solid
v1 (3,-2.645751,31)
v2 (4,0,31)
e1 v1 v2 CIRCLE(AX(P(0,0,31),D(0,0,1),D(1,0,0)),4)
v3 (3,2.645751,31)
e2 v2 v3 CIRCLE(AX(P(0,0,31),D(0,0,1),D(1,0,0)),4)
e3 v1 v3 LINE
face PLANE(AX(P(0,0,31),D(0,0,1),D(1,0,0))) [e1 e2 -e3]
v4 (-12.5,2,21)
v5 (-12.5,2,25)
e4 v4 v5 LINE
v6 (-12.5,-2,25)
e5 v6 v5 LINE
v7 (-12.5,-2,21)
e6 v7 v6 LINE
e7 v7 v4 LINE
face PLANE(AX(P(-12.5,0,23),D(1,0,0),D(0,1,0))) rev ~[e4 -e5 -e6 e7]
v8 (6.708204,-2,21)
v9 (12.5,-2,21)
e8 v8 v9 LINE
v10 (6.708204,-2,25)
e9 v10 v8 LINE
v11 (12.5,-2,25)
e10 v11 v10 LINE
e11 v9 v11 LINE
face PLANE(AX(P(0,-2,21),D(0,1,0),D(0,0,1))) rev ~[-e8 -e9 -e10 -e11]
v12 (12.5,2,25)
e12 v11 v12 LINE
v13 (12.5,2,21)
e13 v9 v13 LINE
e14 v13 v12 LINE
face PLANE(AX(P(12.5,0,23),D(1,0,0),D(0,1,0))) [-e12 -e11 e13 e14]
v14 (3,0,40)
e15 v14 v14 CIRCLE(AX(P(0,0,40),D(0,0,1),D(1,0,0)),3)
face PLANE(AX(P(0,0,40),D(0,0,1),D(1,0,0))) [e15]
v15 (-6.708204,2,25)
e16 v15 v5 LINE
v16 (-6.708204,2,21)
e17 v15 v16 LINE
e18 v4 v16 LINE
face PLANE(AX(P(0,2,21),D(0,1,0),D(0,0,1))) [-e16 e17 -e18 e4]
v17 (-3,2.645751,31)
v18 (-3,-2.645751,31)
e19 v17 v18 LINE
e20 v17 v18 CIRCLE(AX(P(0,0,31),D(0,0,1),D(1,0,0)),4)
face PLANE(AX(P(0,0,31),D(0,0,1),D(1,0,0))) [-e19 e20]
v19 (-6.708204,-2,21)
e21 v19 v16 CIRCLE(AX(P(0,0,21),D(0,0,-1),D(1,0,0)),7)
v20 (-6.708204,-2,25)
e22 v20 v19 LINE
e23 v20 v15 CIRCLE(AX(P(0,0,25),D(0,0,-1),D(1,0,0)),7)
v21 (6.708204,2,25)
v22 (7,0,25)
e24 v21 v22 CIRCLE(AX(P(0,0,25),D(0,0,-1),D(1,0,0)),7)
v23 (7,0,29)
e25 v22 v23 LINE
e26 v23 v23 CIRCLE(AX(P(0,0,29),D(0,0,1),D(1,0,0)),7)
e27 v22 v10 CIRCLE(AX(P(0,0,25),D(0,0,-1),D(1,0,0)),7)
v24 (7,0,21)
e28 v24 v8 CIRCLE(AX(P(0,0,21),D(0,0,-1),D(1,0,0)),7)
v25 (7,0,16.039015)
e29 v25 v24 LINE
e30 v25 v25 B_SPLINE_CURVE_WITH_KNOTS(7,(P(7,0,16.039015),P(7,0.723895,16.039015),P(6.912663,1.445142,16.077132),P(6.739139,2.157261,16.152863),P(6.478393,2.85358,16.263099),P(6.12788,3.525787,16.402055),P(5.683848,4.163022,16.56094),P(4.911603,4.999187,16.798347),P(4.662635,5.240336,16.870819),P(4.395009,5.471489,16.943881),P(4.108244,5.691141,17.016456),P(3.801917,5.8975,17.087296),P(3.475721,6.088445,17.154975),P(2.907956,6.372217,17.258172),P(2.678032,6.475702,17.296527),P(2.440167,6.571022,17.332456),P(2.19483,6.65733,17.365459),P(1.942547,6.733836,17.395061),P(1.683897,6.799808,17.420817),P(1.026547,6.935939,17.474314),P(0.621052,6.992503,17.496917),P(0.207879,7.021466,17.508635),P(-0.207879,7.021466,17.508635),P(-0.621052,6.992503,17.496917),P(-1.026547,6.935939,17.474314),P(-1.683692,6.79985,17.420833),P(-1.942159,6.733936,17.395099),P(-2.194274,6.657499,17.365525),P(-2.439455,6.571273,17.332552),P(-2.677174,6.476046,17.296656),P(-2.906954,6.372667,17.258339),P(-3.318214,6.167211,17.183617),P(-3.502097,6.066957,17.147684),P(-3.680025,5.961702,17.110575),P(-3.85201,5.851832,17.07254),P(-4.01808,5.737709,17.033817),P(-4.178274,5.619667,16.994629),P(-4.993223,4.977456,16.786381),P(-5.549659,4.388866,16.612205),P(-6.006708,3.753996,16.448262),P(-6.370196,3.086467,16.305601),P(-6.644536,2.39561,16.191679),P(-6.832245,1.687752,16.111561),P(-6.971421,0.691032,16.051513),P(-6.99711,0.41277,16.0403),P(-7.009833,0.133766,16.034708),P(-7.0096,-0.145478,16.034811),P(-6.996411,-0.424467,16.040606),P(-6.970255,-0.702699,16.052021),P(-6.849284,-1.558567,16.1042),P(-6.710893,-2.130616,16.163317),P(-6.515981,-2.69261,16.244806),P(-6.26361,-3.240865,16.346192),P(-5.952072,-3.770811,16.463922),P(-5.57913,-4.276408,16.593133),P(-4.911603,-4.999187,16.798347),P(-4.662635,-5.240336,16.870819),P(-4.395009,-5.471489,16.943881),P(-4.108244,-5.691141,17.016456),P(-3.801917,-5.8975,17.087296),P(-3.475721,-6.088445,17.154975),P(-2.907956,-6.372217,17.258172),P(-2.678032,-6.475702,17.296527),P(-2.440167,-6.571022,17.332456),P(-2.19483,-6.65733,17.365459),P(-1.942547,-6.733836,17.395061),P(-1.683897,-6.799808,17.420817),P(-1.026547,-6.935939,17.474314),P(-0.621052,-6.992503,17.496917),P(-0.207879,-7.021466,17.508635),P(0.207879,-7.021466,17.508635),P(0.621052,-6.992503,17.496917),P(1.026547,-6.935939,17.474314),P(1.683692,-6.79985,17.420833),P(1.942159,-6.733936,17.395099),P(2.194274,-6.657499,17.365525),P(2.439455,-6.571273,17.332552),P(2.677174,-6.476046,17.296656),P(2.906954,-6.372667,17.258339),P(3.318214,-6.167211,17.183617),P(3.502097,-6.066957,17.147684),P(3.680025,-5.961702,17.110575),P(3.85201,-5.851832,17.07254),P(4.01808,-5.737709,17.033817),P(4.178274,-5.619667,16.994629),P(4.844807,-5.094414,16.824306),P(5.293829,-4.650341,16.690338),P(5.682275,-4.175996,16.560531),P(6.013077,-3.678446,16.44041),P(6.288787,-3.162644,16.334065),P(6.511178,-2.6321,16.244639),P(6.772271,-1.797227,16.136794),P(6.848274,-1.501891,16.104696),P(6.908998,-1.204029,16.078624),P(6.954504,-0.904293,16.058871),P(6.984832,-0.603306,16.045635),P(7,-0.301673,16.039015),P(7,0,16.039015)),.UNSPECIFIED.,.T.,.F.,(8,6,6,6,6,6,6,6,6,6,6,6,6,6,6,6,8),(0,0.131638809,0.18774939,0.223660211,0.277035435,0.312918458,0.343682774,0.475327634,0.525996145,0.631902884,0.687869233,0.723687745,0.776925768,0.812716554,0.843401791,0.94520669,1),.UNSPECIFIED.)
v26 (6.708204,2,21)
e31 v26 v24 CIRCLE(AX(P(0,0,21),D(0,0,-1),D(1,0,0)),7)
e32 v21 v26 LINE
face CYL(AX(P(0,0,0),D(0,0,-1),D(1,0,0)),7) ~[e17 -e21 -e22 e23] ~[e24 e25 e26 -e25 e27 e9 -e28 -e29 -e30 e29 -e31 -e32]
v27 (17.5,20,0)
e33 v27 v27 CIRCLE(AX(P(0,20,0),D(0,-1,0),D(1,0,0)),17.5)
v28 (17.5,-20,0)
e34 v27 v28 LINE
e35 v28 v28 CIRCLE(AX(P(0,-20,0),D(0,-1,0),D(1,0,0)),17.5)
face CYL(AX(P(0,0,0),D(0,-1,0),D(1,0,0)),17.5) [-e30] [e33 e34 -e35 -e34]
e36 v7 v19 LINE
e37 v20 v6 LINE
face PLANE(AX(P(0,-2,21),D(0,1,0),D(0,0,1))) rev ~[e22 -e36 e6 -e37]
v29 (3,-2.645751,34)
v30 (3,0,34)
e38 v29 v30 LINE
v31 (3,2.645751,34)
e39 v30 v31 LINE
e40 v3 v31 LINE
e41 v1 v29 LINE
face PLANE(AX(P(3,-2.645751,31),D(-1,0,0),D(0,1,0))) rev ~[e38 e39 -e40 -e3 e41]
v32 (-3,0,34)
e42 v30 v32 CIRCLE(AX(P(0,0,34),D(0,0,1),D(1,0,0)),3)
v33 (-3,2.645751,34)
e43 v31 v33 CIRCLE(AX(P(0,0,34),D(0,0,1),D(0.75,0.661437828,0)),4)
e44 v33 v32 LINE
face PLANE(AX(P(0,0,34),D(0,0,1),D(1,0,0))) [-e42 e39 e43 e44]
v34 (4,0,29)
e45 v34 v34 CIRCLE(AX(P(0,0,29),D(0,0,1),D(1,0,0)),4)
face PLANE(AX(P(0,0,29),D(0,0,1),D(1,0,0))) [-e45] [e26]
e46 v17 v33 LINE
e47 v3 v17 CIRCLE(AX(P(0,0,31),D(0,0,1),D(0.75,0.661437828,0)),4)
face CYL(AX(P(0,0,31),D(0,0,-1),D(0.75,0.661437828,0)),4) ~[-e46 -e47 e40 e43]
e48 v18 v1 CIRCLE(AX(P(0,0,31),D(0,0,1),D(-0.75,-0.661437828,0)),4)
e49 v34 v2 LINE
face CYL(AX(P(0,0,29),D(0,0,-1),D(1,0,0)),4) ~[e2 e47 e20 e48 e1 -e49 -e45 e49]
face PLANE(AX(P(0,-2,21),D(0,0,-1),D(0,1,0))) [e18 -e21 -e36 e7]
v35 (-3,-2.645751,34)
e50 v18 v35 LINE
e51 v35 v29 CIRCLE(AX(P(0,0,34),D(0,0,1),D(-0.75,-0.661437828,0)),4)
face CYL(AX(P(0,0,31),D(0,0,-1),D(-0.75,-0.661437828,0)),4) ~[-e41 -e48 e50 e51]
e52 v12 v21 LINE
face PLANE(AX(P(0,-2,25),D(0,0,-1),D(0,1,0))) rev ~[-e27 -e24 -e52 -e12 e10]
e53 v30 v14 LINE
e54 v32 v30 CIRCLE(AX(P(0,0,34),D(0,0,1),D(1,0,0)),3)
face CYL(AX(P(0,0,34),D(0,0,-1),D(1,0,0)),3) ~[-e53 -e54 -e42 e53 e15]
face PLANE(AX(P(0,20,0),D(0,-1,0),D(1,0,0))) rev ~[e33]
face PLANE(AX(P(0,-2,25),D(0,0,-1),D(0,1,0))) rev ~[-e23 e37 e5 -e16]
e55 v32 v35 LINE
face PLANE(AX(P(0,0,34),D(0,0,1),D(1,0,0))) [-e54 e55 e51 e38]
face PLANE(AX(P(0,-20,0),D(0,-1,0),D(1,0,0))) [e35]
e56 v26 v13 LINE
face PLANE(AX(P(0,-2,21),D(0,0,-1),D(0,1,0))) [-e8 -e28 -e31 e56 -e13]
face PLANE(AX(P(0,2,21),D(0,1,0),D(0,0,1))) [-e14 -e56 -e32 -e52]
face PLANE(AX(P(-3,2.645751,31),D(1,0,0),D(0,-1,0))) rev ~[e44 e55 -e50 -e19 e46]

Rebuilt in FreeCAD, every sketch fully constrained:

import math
import FreeCAD as App
import Part
import Sketcher

V = App.Vector
Q = App.Units.Quantity


def add_polygon(sketch, points):
    """Adds a closed chain of lines whose ends are joined by coincident constraints."""
    first, n = sketch.GeometryCount, len(points)
    for a, b in zip(points, points[1:] + points[:1]):
        sketch.addGeometry(Part.LineSegment(App.Vector(*a, 0), App.Vector(*b, 0)), False)
    for i in range(n):
        sketch.addConstraint(Sketcher.Constraint("Coincident", first + i, 2, first + (i + 1) % n, 1))

doc = App.newDocument("Part")
params = doc.addObject("Spreadsheet::Sheet", "Params")
for row, (alias, value) in enumerate([
    ("sketch1_diameter", "35 mm"),
    ("pad1_length", "40 mm"),
    ("sketch2_diameter", "14 mm"),
    ("pad2_length", "29 mm"),
    ("sketch3_diameter", "8 mm"),
    ("pad3_length", "2 mm"),
    ("sketch4_radius", "4 mm"),
    ("pad4_length", "3 mm"),
    ("sketch5_diameter", "6 mm"),
    ("pad5_length", "6 mm"),
    ("sketch6_width", "4 mm"),
    ("pad6_length", "25 mm"),
], start=1):
    params.set(f"A{row}", alias)
    params.set(f"B{row}", "=" + value)
    params.setAlias(f"B{row}", alias)

body = doc.addObject("PartDesign::Body", "Body")

sketch1 = doc.addObject("Sketcher::SketchObject", "Sketch")
body.addObject(sketch1)
sketch1.AttachmentSupport = (doc.XZ_Plane, [""])
sketch1.MapMode = "FlatFace"
sketch1.addGeometry(Part.Circle(V(0, 0, 0), V(0, 0, 1), 18), False)
sketch1.addConstraint([
    Sketcher.Constraint("Coincident", 0, 3, -1, 1),
    Sketcher.Constraint("Diameter", 0, Q("35 mm")),
])
sketch1.setExpression("Constraints[1]", "Params.sketch1_diameter")
pad1 = doc.addObject("PartDesign::Pad", "Pad")
body.addObject(pad1)
pad1.Profile = sketch1
pad1.setExpression("Length", "Params.pad1_length")
pad1.Midplane = True

sketch2 = doc.addObject("Sketcher::SketchObject", "Sketch001")
body.addObject(sketch2)
sketch2.AttachmentSupport = (doc.XY_Plane, [""])
sketch2.MapMode = "FlatFace"
sketch2.addGeometry(Part.Circle(V(0, 0, 0), V(0, 0, 1), 7), False)
sketch2.addConstraint([
    Sketcher.Constraint("Coincident", 0, 3, -1, 1),
    Sketcher.Constraint("Diameter", 0, Q("14 mm")),
])
sketch2.setExpression("Constraints[1]", "Params.sketch2_diameter")
pad2 = doc.addObject("PartDesign::Pad", "Pad001")
body.addObject(pad2)
pad2.Profile = sketch2
pad2.setExpression("Length", "Params.pad2_length")

sketch3 = doc.addObject("Sketcher::SketchObject", "Sketch002")
body.addObject(sketch3)
sketch3.AttachmentSupport = (doc.XY_Plane, [""])
sketch3.MapMode = "FlatFace"
sketch3.AttachmentOffset = App.Placement(V(0, 0, 29), App.Rotation())
sketch3.addGeometry(Part.Circle(V(0, 0, 0), V(0, 0, 1), 4), False)
sketch3.addConstraint([
    Sketcher.Constraint("Coincident", 0, 3, -1, 1),
    Sketcher.Constraint("Diameter", 0, Q("8 mm")),
])
sketch3.setExpression("Constraints[1]", "Params.sketch3_diameter")
pad3 = doc.addObject("PartDesign::Pad", "Pad002")
body.addObject(pad3)
pad3.Profile = sketch3
pad3.setExpression("Length", "Params.pad3_length")

sketch4 = doc.addObject("Sketcher::SketchObject", "Sketch003")
body.addObject(sketch4)
sketch4.AttachmentSupport = (doc.XY_Plane, [""])
sketch4.MapMode = "FlatFace"
sketch4.AttachmentOffset = App.Placement(V(0, 0, 31), App.Rotation())
sketch4.addGeometry([
    Part.LineSegment(V(-3, 2.6, 0), V(-3, -2.6, 0)),
    Part.ArcOfCircle(Part.Circle(V(0, 0, 0), V(0, 0, 1), 4), math.radians(-139), math.radians(-41)),
    Part.LineSegment(V(3, -2.6, 0), V(3, 2.6, 0)),
    Part.ArcOfCircle(Part.Circle(V(0, 0, 0), V(0, 0, 1), 4), math.radians(41), math.radians(139)),
], False)
sketch4.addConstraint([
    Sketcher.Constraint("Coincident", 0, 2, 1, 1),
    Sketcher.Constraint("Coincident", 1, 2, 2, 1),
    Sketcher.Constraint("Coincident", 2, 2, 3, 1),
    Sketcher.Constraint("Coincident", 3, 2, 0, 1),
    Sketcher.Constraint("Vertical", 0),
    Sketcher.Constraint("Vertical", 2),
    Sketcher.Constraint("Coincident", 1, 3, -1, 1),
    Sketcher.Constraint("Coincident", 3, 3, -1, 1),
    Sketcher.Constraint("Equal", 1, 3),
    Sketcher.Constraint("Horizontal", 0, 2, 1, 2),
    Sketcher.Constraint("Radius", 1, Q("4 mm")),
    Sketcher.Constraint("DistanceX", 0, 2, -1, 1, Q("3 mm")),
])
sketch4.setExpression("Constraints[10]", "Params.sketch4_radius")
pad4 = doc.addObject("PartDesign::Pad", "Pad003")
body.addObject(pad4)
pad4.Profile = sketch4
pad4.setExpression("Length", "Params.pad4_length")

sketch5 = doc.addObject("Sketcher::SketchObject", "Sketch004")
body.addObject(sketch5)
sketch5.AttachmentSupport = (doc.XY_Plane, [""])
sketch5.MapMode = "FlatFace"
sketch5.AttachmentOffset = App.Placement(V(0, 0, 34), App.Rotation())
sketch5.addGeometry(Part.Circle(V(0, 0, 0), V(0, 0, 1), 3), False)
sketch5.addConstraint([
    Sketcher.Constraint("Coincident", 0, 3, -1, 1),
    Sketcher.Constraint("Diameter", 0, Q("6 mm")),
])
sketch5.setExpression("Constraints[1]", "Params.sketch5_diameter")
pad5 = doc.addObject("PartDesign::Pad", "Pad004")
body.addObject(pad5)
pad5.Profile = sketch5
pad5.setExpression("Length", "Params.pad5_length")

sketch6 = doc.addObject("Sketcher::SketchObject", "Sketch005")
body.addObject(sketch6)
sketch6.AttachmentSupport = (doc.YZ_Plane, [""])
sketch6.MapMode = "FlatFace"
add_polygon(sketch6, [(-2, 25), (-2, 21), (2, 21), (2, 25)])
sketch6.addConstraint([
    Sketcher.Constraint("Vertical", 0),
    Sketcher.Constraint("Horizontal", 1),
    Sketcher.Constraint("Vertical", 2),
    Sketcher.Constraint("Horizontal", 3),
    Sketcher.Constraint("Equal", 3, 0),
    Sketcher.Constraint("DistanceX", 1, 1, 1, 2, Q("4 mm")),
    Sketcher.Constraint("DistanceX", 0, 2, -1, 1, Q("2 mm")),
    Sketcher.Constraint("DistanceY", -1, 1, 0, 2, Q("21 mm")),
])
sketch6.setExpression("Constraints[9]", "Params.sketch6_width")
pad6 = doc.addObject("PartDesign::Pad", "Pad005")
body.addObject(pad6)
pad6.Profile = sketch6
pad6.setExpression("Length", "Params.pad6_length")
pad6.Midplane = True

doc.recompute()
